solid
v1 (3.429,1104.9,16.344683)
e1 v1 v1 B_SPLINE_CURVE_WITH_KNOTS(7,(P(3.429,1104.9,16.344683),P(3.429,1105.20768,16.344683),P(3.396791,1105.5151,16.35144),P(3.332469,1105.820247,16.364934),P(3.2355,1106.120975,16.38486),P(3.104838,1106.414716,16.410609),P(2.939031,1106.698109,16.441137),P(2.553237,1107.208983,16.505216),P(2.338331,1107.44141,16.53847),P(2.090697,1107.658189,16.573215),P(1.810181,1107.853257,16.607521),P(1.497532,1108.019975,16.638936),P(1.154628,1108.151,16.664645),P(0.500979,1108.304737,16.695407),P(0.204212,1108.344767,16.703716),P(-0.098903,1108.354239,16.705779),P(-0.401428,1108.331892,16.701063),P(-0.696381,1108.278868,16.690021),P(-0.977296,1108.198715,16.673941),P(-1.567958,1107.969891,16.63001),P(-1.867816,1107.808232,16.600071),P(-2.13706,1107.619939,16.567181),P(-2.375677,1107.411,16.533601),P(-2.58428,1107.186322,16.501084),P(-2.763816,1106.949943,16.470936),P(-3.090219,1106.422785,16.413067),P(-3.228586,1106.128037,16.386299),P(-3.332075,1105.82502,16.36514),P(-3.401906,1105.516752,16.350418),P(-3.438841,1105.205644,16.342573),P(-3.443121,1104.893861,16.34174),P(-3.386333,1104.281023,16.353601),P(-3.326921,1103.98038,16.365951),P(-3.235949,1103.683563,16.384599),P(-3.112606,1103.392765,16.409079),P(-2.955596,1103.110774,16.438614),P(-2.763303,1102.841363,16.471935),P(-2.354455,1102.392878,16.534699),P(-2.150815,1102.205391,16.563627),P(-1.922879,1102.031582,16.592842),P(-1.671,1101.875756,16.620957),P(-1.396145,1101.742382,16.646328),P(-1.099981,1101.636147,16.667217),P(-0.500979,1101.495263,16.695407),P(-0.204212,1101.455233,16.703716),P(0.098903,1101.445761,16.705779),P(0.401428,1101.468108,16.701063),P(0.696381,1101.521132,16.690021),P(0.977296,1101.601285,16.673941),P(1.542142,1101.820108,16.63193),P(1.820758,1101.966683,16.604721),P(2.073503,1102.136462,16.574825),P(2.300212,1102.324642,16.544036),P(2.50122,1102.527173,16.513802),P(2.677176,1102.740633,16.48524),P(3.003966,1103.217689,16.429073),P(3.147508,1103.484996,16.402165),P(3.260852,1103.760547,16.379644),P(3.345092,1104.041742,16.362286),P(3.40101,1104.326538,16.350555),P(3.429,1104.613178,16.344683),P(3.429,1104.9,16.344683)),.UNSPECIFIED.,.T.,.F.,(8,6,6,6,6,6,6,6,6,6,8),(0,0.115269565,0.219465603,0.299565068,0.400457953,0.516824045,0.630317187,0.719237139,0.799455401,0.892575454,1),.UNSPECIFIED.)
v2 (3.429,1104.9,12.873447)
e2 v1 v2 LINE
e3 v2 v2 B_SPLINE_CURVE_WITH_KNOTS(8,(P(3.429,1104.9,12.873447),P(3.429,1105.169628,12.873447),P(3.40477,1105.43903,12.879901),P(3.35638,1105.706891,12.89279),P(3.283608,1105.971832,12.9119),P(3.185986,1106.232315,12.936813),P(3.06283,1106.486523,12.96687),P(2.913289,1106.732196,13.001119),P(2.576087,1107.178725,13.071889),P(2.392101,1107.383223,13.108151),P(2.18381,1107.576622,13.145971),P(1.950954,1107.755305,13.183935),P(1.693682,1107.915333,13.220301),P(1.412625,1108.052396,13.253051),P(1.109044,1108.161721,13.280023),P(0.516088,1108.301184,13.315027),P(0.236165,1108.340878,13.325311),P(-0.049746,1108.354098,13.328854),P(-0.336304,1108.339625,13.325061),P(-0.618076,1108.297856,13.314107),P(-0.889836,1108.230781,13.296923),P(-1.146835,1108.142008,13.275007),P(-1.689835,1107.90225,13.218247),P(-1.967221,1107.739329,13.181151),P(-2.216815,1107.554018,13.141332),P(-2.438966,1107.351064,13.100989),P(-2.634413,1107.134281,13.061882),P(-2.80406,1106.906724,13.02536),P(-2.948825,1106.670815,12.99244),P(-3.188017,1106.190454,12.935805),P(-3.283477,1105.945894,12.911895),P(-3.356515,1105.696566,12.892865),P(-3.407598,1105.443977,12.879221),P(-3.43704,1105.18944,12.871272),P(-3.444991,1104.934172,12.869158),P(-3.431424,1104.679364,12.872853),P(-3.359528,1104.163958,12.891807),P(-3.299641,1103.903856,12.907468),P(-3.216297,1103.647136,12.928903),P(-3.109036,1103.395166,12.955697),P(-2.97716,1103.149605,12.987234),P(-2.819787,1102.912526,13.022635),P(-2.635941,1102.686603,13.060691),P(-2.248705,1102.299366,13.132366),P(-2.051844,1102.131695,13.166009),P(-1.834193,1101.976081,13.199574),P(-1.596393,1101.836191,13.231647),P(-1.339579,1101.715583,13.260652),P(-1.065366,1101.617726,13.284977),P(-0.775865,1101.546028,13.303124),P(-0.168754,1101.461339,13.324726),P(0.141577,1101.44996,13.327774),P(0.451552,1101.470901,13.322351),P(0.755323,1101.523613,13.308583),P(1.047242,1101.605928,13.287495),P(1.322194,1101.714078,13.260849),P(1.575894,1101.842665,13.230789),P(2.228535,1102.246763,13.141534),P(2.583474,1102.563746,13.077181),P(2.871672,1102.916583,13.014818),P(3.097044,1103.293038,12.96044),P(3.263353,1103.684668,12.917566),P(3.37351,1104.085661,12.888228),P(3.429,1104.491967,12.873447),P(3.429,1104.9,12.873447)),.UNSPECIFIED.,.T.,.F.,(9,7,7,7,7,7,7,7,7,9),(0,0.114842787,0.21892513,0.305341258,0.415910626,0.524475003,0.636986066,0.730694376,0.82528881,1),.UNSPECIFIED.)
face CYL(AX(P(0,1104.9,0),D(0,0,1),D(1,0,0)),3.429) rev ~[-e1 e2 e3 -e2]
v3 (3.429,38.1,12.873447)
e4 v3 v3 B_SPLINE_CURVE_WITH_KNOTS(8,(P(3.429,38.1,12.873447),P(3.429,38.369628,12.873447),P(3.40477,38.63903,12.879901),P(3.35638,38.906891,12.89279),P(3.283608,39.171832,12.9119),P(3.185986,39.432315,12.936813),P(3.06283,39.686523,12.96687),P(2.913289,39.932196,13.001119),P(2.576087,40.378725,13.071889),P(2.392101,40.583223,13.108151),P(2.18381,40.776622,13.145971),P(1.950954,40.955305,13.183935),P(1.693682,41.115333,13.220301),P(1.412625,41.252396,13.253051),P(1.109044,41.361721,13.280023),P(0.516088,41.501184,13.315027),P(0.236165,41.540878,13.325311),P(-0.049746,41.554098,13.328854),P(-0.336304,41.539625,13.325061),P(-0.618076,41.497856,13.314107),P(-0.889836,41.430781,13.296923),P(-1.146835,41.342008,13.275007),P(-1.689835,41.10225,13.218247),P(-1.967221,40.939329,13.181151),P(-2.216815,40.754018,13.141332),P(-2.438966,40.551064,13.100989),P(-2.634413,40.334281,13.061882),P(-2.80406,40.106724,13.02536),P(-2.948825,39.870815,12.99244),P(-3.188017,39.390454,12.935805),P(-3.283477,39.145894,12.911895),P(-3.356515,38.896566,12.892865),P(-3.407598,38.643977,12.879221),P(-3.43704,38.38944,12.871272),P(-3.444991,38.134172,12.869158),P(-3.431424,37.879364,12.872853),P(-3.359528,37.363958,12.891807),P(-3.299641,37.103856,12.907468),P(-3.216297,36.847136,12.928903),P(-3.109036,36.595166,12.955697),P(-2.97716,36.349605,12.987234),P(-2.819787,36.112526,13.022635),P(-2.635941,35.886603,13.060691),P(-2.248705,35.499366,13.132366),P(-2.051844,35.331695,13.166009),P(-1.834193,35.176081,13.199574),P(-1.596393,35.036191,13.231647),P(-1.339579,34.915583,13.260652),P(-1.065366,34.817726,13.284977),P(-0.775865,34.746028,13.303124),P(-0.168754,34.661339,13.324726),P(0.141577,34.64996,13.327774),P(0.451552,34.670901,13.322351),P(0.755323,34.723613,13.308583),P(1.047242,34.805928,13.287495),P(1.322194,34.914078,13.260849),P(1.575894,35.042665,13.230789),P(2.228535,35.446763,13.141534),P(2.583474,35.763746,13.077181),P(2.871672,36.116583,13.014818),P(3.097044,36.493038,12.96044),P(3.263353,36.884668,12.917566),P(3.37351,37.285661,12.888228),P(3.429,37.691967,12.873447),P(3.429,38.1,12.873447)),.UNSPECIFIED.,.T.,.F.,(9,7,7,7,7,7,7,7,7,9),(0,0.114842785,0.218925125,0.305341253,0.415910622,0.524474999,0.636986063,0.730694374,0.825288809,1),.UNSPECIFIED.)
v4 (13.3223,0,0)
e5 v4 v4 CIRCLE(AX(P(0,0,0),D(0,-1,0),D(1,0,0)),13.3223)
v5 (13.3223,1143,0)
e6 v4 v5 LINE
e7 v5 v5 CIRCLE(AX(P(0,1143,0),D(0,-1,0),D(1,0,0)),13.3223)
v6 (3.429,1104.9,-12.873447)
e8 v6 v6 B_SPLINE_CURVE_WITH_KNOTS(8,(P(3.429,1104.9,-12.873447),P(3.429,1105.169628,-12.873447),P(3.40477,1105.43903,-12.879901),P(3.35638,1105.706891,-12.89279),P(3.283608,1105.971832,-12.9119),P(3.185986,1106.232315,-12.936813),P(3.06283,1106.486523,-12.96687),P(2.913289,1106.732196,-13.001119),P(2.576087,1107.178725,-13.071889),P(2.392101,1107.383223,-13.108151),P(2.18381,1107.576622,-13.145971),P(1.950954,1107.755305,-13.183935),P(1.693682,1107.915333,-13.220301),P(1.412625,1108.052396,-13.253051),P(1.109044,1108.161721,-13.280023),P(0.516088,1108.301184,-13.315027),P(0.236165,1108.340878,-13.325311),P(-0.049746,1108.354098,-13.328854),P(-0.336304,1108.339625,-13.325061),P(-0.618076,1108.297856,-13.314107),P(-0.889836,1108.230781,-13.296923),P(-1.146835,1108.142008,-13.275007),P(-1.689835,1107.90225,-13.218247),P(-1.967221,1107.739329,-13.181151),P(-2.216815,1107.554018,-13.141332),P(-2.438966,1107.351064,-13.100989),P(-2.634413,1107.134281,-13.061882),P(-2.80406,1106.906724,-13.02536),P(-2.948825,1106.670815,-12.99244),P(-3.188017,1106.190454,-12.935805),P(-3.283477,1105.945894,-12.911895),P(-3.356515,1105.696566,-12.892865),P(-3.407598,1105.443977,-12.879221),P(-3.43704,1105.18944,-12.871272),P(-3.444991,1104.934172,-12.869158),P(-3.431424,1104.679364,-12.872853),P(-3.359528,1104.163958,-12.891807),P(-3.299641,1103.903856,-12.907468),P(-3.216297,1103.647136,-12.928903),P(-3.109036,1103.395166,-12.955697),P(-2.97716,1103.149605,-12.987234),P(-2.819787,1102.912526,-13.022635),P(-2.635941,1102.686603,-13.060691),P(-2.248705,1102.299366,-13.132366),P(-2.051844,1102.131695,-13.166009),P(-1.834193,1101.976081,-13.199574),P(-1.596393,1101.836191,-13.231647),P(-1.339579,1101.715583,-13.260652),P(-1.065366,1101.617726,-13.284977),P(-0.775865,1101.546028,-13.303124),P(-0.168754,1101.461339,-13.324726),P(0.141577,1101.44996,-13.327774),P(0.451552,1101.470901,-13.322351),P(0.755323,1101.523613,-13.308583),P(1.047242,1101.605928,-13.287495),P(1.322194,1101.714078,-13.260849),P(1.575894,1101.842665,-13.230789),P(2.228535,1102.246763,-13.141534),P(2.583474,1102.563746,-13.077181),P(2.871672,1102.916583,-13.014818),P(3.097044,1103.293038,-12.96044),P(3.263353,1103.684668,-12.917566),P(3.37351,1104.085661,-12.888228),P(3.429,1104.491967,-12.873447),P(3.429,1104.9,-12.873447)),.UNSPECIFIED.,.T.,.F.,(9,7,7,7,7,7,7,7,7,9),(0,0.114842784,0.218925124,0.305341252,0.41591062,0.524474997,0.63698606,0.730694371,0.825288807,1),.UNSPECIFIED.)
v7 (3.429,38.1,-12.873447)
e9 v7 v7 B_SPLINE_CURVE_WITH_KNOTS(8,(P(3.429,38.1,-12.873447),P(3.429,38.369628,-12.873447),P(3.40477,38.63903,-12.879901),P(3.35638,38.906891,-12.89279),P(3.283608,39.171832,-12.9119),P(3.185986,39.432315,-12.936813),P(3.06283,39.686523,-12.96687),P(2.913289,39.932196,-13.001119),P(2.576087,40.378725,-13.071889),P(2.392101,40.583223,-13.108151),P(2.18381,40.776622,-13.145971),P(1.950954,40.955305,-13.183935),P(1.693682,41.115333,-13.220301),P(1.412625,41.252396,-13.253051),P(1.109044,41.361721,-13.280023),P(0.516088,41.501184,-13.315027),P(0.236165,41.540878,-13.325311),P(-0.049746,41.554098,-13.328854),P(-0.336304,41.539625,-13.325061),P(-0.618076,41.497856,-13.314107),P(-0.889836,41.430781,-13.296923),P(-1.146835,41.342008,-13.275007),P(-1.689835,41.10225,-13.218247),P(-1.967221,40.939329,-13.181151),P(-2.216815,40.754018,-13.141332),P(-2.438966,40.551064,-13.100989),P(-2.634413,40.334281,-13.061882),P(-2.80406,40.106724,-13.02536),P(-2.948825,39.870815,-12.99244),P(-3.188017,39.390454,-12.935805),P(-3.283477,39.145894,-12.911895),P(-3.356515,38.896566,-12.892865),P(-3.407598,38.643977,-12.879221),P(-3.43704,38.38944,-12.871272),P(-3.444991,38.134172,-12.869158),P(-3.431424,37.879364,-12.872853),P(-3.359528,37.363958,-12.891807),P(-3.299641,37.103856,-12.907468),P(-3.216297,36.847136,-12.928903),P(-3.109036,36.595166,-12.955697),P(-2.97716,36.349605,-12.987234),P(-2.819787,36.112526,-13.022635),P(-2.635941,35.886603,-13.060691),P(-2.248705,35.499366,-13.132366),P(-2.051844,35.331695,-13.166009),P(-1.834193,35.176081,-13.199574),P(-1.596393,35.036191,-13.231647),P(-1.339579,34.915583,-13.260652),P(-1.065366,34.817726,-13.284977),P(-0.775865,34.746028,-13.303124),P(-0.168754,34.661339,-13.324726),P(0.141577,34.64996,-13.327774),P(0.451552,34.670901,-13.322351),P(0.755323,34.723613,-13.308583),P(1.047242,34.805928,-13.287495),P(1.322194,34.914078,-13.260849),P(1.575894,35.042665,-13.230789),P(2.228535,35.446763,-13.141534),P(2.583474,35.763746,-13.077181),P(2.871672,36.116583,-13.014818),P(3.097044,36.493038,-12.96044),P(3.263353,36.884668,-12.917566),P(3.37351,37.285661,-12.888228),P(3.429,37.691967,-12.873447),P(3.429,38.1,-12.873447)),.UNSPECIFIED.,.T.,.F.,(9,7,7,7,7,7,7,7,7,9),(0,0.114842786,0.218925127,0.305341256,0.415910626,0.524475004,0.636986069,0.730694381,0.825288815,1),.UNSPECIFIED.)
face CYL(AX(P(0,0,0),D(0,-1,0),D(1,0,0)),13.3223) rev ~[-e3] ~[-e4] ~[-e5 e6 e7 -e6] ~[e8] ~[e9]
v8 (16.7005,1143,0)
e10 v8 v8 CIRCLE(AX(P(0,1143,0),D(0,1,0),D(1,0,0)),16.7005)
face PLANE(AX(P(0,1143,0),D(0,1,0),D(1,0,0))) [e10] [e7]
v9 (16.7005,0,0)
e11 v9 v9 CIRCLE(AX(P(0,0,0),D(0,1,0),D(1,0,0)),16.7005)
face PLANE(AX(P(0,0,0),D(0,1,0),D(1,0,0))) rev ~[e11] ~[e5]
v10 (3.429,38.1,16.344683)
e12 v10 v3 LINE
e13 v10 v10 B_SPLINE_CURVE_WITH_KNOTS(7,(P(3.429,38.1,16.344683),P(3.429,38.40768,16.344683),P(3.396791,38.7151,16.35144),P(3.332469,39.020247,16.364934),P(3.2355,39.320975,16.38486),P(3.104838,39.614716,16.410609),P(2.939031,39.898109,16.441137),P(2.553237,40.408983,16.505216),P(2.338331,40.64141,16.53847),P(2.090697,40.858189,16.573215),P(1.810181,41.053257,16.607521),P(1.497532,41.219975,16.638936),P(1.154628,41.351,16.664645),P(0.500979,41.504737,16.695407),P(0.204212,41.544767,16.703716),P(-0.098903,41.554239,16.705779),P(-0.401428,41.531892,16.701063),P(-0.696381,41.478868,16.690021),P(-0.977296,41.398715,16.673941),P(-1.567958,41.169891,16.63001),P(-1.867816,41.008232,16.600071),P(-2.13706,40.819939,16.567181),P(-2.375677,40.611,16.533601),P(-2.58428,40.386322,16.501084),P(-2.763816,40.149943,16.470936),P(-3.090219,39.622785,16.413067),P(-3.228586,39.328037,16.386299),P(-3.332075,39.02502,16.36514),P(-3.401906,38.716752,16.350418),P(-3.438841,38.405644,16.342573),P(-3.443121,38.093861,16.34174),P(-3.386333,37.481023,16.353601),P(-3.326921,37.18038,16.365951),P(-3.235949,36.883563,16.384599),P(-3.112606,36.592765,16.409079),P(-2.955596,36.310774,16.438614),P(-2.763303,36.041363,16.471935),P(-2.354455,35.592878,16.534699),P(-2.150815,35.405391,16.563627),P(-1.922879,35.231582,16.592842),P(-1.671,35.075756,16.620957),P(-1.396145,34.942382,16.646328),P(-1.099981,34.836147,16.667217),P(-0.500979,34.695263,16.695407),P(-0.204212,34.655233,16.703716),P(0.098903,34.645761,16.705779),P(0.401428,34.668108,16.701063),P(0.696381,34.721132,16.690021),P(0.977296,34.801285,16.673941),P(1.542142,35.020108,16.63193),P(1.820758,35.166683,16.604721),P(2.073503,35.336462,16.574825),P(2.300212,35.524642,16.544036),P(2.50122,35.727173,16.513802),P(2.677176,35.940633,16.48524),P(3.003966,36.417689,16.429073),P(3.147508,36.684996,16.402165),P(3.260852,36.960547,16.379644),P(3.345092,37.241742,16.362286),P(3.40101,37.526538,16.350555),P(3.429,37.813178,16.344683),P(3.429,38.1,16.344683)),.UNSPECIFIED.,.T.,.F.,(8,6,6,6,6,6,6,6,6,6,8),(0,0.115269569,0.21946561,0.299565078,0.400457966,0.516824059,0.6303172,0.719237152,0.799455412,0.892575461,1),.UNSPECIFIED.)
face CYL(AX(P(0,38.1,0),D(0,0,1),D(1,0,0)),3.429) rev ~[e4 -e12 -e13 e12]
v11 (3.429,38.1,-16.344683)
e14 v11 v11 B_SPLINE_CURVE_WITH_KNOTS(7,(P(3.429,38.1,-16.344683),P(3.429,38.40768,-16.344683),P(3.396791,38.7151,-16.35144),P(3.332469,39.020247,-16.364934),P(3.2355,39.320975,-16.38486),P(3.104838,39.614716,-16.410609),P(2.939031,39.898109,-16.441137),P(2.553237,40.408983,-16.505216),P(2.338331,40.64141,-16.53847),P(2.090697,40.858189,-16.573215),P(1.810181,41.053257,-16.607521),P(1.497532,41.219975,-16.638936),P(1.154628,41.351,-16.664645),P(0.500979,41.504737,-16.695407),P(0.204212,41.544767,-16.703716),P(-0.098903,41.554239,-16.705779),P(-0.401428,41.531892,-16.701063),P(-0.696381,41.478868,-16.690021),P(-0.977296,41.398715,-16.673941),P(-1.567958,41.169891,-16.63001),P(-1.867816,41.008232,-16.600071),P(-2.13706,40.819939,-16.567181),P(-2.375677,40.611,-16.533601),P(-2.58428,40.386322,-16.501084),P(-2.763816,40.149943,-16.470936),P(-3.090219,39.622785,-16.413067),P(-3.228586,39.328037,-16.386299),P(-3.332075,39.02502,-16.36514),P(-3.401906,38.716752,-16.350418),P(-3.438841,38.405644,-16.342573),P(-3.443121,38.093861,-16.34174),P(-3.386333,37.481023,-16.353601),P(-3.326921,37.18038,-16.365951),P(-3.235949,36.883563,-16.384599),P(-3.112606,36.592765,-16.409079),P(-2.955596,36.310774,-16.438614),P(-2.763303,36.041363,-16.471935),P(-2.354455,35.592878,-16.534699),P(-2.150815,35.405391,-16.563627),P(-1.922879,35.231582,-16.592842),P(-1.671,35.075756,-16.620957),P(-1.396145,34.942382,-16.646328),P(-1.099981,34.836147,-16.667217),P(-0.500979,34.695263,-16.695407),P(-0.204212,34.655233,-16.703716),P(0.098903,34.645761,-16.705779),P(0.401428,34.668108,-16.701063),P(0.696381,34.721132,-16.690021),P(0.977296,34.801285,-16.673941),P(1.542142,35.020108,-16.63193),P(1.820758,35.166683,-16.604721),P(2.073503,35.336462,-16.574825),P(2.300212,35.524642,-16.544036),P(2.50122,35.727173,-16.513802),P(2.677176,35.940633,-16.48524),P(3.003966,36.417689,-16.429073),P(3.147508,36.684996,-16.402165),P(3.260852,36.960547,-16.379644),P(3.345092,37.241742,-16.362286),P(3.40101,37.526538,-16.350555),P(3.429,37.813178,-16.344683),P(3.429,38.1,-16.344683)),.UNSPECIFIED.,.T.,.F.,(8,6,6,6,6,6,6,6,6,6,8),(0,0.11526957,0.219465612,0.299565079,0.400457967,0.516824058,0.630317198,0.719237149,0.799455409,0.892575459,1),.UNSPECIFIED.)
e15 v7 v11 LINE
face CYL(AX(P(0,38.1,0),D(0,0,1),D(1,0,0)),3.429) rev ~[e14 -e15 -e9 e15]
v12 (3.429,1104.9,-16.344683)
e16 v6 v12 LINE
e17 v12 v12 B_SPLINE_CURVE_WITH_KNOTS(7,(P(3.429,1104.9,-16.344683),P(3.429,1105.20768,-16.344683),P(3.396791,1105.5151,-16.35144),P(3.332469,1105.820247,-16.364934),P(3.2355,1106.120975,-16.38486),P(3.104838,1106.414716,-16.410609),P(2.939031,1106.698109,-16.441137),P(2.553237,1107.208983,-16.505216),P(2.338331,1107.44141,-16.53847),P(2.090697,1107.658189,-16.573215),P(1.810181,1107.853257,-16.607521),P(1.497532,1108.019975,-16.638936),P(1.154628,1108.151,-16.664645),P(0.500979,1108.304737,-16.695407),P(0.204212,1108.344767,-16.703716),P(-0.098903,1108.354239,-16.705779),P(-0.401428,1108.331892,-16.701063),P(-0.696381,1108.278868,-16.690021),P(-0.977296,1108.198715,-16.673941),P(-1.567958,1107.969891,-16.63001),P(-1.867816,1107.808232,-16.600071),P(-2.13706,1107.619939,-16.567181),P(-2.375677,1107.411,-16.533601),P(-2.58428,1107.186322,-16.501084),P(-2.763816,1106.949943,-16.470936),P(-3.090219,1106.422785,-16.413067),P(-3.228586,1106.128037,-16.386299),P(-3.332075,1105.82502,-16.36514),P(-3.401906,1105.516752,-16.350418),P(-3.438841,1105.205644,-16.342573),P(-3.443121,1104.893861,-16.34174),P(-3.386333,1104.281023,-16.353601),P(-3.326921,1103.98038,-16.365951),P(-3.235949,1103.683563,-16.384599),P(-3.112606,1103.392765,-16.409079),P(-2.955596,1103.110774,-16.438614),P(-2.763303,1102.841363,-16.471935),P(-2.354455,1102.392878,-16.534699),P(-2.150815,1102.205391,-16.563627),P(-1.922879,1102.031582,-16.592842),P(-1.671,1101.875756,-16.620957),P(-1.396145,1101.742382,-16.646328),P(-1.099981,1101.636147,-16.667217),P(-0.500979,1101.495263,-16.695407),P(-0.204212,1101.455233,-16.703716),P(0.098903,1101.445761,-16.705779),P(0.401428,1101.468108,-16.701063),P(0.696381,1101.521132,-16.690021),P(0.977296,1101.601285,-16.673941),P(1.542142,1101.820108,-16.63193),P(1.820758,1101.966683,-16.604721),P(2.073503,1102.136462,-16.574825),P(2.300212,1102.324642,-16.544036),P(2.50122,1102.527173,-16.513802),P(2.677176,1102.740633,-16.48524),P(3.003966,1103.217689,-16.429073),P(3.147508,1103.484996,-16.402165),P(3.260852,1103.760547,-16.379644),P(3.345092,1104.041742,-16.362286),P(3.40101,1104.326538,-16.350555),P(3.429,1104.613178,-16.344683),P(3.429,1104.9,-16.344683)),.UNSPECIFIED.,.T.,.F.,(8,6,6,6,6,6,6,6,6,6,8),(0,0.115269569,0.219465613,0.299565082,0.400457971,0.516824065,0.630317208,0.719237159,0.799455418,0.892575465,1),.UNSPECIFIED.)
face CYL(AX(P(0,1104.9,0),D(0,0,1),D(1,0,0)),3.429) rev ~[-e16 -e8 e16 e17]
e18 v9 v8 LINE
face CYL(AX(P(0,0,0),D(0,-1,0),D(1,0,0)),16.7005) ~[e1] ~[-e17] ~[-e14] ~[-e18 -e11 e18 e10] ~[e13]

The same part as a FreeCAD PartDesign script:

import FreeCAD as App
import Part
import Sketcher

V = App.Vector
Q = App.Units.Quantity

doc = App.newDocument("Part")
body = doc.addObject("PartDesign::Body", "Body")

sketch1 = body.newObject("Sketcher::SketchObject", "Sketch")
sketch1.AttachmentSupport = (doc.getObject("XZ_Plane"), [""])
sketch1.MapMode = "FlatFace"
sketch1.addGeometry(Part.Circle(V(0, 0, 0), V(0, 0, 1), 16.7005), False)
sketch1.addConstraint(Sketcher.Constraint("Coincident", 0, 3, -1, 1))
sketch1.addConstraint(Sketcher.Constraint("Diameter", 0, Q("1.315 in")))
pad1 = body.newObject("PartDesign::Pad", "Pad")
pad1.Profile = sketch1
pad1.Length = Q("45 in")
pad1.Reversed = True

sketch2 = body.newObject("Sketcher::SketchObject", "Sketch001")
sketch2.AttachmentSupport = (doc.getObject("XY_Plane"), [""])
sketch2.MapMode = "FlatFace"
sketch2.addGeometry(Part.Circle(V(0, 38.1, 0), V(0, 0, 1), 3.429), False)
sketch2.addGeometry(Part.Circle(V(0, 1104.9, 0), V(0, 0, 1), 3.429), False)
sketch2.addConstraint(Sketcher.Constraint("Equal", 0, 1))
sketch2.addConstraint(Sketcher.Constraint("PointOnObject", 0, 3, -2))
sketch2.addConstraint(Sketcher.Constraint("PointOnObject", 1, 3, -2))
sketch2.addConstraint(Sketcher.Constraint("Diameter", 0, Q("0.27 in")))
sketch2.addConstraint(Sketcher.Constraint("DistanceY", 0, 3, 1, 3, Q("42 in")))
sketch2.addConstraint(Sketcher.Constraint("DistanceY", -1, 1, 0, 3, Q("1.5 in")))
pocket1 = body.newObject("PartDesign::Pocket", "Pocket")
pocket1.Profile = sketch2
pocket1.Type = "ThroughAll"
pocket1.Midplane = True

sketch3 = body.newObject("Sketcher::SketchObject", "Sketch002")
sketch3.AttachmentSupport = (doc.getObject("XZ_Plane"), [""])
sketch3.MapMode = "FlatFace"
sketch3.addGeometry(Part.Circle(V(0, 0, 0), V(0, 0, 1), 13.3223), False)
sketch3.addConstraint(Sketcher.Constraint("Coincident", 0, 3, -1, 1))
sketch3.addConstraint(Sketcher.Constraint("Diameter", 0, Q("1.049 in")))
pocket2 = body.newObject("PartDesign::Pocket", "Pocket001")
pocket2.Profile = sketch3
pocket2.Type = "ThroughAll"

doc.recompute()
